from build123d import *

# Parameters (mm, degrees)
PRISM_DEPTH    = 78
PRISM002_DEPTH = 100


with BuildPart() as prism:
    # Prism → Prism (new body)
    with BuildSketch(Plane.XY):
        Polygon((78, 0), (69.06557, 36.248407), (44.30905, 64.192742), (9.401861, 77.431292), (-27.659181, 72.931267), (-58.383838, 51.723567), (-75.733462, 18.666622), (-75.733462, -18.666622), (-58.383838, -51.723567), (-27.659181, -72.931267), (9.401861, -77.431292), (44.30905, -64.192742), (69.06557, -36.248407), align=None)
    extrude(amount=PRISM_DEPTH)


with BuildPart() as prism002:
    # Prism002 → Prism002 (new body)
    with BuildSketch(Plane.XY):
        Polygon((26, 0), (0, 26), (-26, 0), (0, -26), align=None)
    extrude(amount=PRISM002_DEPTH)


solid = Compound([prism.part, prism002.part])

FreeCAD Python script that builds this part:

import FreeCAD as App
import Part
import Sketcher
from FreeCAD import Vector

doc = App.newDocument("Part")
params = doc.addObject("Spreadsheet::Sheet", "Params")
for row, (alias, value) in enumerate([
    ("pad1_length", "78 mm"),
    ("pad2_length", "100 mm"),
], start=1):
    params.set(f"A{row}", alias)
    params.set(f"B{row}", "=" + value)
    params.setAlias(f"B{row}", alias)

body = doc.addObject("PartDesign::Body", "Body")

# Sketch on XY plane
sketch1 = doc.addObject("Sketcher::SketchObject", "Sketch")
body.addObject(sketch1)
sketch1.AttachmentSupport = (doc.XY_Plane, [""])
sketch1.MapMode = "FlatFace"
sketch1.addGeometry(Part.LineSegment(Vector(78, 0, 0), Vector(69, 36, 0)), False)
sketch1.addGeometry(Part.LineSegment(Vector(69, 36, 0), Vector(44, 64, 0)), False)
sketch1.addGeometry(Part.LineSegment(Vector(44, 64, 0), Vector(9, 77, 0)), False)
sketch1.addGeometry(Part.LineSegment(Vector(9, 77, 0), Vector(-28, 73, 0)), False)
sketch1.addGeometry(Part.LineSegment(Vector(-28, 73, 0), Vector(-58, 52, 0)), False)
sketch1.addGeometry(Part.LineSegment(Vector(-58, 52, 0), Vector(-76, 19, 0)), False)
sketch1.addGeometry(Part.LineSegment(Vector(-76, 19, 0), Vector(-76, -19, 0)), False)
sketch1.addGeometry(Part.LineSegment(Vector(-76, -19, 0), Vector(-58, -52, 0)), False)
sketch1.addGeometry(Part.LineSegment(Vector(-58, -52, 0), Vector(-28, -73, 0)), False)
sketch1.addGeometry(Part.LineSegment(Vector(-28, -73, 0), Vector(9, -77, 0)), False)
sketch1.addGeometry(Part.LineSegment(Vector(9, -77, 0), Vector(44, -64, 0)), False)
sketch1.addGeometry(Part.LineSegment(Vector(44, -64, 0), Vector(69, -36, 0)), False)
sketch1.addGeometry(Part.LineSegment(Vector(69, -36, 0), Vector(78, 0, 0)), False)
sketch1.addConstraint(Sketcher.Constraint("Coincident", 0, 2, 1, 1))
sketch1.addConstraint(Sketcher.Constraint("Coincident", 1, 2, 2, 1))
sketch1.addConstraint(Sketcher.Constraint("Coincident", 2, 2, 3, 1))
sketch1.addConstraint(Sketcher.Constraint("Coincident", 3, 2, 4, 1))
sketch1.addConstraint(Sketcher.Constraint("Coincident", 4, 2, 5, 1))
sketch1.addConstraint(Sketcher.Constraint("Coincident", 5, 2, 6, 1))
sketch1.addConstraint(Sketcher.Constraint("Coincident", 6, 2, 7, 1))
sketch1.addConstraint(Sketcher.Constraint("Coincident", 7, 2, 8, 1))
sketch1.addConstraint(Sketcher.Constraint("Coincident", 8, 2, 9, 1))
sketch1.addConstraint(Sketcher.Constraint("Coincident", 9, 2, 10, 1))
sketch1.addConstraint(Sketcher.Constraint("Coincident", 10, 2, 11, 1))
sketch1.addConstraint(Sketcher.Constraint("Coincident", 11, 2, 12, 1))
sketch1.addConstraint(Sketcher.Constraint("Coincident", 12, 2, 0, 1))
sketch1.addConstraint(Sketcher.Constraint("Vertical", 6))
sketch1.addConstraint(Sketcher.Constraint("Symmetric", 4, 2, 7, 2, -1))
sketch1.addConstraint(Sketcher.Constraint("Symmetric", 3, 2, 8, 2, -1))
sketch1.addConstraint(Sketcher.Constraint("Symmetric", 2, 2, 9, 2, -1))
sketch1.addConstraint(Sketcher.Constraint("Symmetric", 1, 2, 10, 2, -1))
sketch1.addConstraint(Sketcher.Constraint("Symmetric", 0, 2, 11, 2, -1))
sketch1.addConstraint(Sketcher.Constraint("PointOnObject", 12, 2, -1))
sketch1.addConstraint(Sketcher.Constraint("Equal", 0, 1))
sketch1.addConstraint(Sketcher.Constraint("Equal", 1, 2))
sketch1.addConstraint(Sketcher.Constraint("Equal", 2, 3))
sketch1.addConstraint(Sketcher.Constraint("Equal", 3, 4))
sketch1.addConstraint(Sketcher.Constraint("Equal", 4, 5))
sketch1.addConstraint(Sketcher.Constraint("Equal", 5, 7))
sketch1.addConstraint(Sketcher.Constraint("DistanceX", -1, 1, 12, 2, 78.0))
sketch1.addConstraint(Sketcher.Constraint("DistanceY", 4, 2, 3, 2, 21.2077))
sketch1.addConstraint(Sketcher.Constraint("DistanceX", 4, 2, 2, 2, 67.785699))
sketch1.addConstraint(Sketcher.Constraint("DistanceY", 9, 2, 0, 2, 113.679699))
sketch1.addConstraint(Sketcher.Constraint("DistanceY", 6, 2, 6, 1, 37.333244))
sketch1.addConstraint(Sketcher.Constraint("DistanceX", -1, 1, 0, 2, 69.06557))
sketch1.addConstraint(Sketcher.Constraint("DistanceX", -1, 1, 1, 2, 44.30905))
sketch1.addConstraint(Sketcher.Constraint("DistanceY", -1, 1, 1, 2, 64.192742))
pad1 = doc.addObject("PartDesign::Pad", "Pad")
body.addObject(pad1)
pad1.Profile = sketch1
pad1.setExpression("Length", "Params.pad1_length")
body2 = doc.addObject("PartDesign::Body", "Body001")

# Sketch on XY plane
sketch2 = doc.addObject("Sketcher::SketchObject", "Sketch001")
body2.addObject(sketch2)
sketch2.AttachmentSupport = (doc.getObject("XY_Plane001"), [""])
sketch2.MapMode = "FlatFace"
sketch2.addGeometry(Part.LineSegment(Vector(26, 0, 0), Vector(0, 26, 0)), False)
sketch2.addGeometry(Part.LineSegment(Vector(0, 26, 0), Vector(-26, 0, 0)), False)
sketch2.addGeometry(Part.LineSegment(Vector(-26, 0, 0), Vector(0, -26, 0)), False)
sketch2.addGeometry(Part.LineSegment(Vector(0, -26, 0), Vector(26, 0, 0)), False)
sketch2.addConstraint(Sketcher.Constraint("Coincident", 0, 2, 1, 1))
sketch2.addConstraint(Sketcher.Constraint("Coincident", 1, 2, 2, 1))
sketch2.addConstraint(Sketcher.Constraint("Coincident", 2, 2, 3, 1))
sketch2.addConstraint(Sketcher.Constraint("Coincident", 3, 2, 0, 1))
sketch2.addConstraint(Sketcher.Constraint("Symmetric", 0, 2, 2, 2, -1, 1))
sketch2.addConstraint(Sketcher.Constraint("Symmetric", 1, 2, 3, 2, -1, 1))
sketch2.addConstraint(Sketcher.Constraint("PointOnObject", 0, 2, -2))
sketch2.addConstraint(Sketcher.Constraint("PointOnObject", 1, 2, -1))
sketch2.addConstraint(Sketcher.Constraint("Perpendicular", 0, 1))
sketch2.addConstraint(Sketcher.Constraint("DistanceY", -1, 1, 0, 2, 26.0))
pad2 = doc.addObject("PartDesign::Pad", "Pad001")
body2.addObject(pad2)
pad2.Profile = sketch2
pad2.setExpression("Length", "Params.pad2_length")

doc.recompute()
